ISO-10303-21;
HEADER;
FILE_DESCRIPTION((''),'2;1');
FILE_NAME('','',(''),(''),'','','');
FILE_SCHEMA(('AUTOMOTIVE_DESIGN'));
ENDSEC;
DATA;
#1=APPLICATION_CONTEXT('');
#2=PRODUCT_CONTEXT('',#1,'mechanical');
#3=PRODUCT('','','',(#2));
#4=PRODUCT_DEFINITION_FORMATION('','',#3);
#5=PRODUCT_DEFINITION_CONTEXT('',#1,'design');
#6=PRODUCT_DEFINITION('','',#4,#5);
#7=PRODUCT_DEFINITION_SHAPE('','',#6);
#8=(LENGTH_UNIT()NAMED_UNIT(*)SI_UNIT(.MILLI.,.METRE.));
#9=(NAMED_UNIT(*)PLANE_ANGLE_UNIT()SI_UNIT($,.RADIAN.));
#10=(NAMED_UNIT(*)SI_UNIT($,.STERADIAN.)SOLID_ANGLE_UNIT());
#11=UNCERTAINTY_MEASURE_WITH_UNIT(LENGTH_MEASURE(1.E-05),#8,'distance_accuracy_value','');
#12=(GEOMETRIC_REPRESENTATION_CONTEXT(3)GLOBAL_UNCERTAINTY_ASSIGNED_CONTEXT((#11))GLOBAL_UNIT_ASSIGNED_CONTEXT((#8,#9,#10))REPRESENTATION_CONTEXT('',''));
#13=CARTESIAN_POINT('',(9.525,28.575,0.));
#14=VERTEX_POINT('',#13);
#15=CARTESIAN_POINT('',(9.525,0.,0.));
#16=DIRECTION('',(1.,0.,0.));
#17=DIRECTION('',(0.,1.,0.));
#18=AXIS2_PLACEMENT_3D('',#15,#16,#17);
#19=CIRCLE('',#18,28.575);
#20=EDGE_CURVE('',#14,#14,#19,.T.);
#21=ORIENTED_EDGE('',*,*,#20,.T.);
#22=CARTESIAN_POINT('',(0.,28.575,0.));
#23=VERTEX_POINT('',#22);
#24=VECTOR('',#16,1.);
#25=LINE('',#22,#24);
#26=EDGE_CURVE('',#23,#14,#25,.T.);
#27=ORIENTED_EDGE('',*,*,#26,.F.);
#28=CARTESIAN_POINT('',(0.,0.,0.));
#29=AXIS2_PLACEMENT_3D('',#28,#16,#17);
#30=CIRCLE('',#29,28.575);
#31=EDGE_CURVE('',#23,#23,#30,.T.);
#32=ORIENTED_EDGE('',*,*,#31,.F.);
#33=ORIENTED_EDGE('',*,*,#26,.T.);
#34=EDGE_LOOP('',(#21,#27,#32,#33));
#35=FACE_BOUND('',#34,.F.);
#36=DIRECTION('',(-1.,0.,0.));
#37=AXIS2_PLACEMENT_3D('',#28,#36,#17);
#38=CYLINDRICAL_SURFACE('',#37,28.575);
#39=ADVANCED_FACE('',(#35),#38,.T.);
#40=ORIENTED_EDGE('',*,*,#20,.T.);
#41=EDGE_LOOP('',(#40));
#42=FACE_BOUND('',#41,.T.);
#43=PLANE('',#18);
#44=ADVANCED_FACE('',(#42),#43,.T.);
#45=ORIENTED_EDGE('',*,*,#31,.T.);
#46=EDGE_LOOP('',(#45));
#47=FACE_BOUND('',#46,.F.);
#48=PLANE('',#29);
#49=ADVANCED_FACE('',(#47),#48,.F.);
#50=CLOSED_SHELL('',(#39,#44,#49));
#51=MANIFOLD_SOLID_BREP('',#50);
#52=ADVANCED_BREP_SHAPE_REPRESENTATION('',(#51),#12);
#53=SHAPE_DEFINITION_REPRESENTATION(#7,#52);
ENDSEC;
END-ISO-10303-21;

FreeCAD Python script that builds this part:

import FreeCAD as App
import Part
import Sketcher
from FreeCAD import Vector
Q = App.Units.Quantity

doc = App.newDocument("Part")
params = doc.addObject("Spreadsheet::Sheet", "Params")
for row, (alias, value) in enumerate([
    ("sketch1_diameter", "2.25 in"),
    ("pad1_length", "0.375 in"),
], start=1):
    params.set(f"A{row}", alias)
    params.set(f"B{row}", "=" + value)
    params.setAlias(f"B{row}", alias)

body = doc.addObject("PartDesign::Body", "Body")

# Sketch on YZ plane
sketch1 = body.newObject("Sketcher::SketchObject", "Sketch")
sketch1.AttachmentSupport = (doc.getObject("YZ_Plane"), [""])
sketch1.MapMode = "FlatFace"
sketch1.addGeometry(Part.Circle(Vector(0, 0, 0), Vector(0, 0, 1), 29), False)
sketch1.addConstraint([
    Sketcher.Constraint("Coincident", 0, 3, -1, 1),
    Sketcher.Constraint("Diameter", 0, Q("2.25 in")),
])
sketch1.setExpression("Constraints[1]", "Params.sketch1_diameter")
pad1 = body.newObject("PartDesign::Pad", "Pad")
pad1.Profile = sketch1
pad1.setExpression("Length", "Params.pad1_length")

doc.recompute()
